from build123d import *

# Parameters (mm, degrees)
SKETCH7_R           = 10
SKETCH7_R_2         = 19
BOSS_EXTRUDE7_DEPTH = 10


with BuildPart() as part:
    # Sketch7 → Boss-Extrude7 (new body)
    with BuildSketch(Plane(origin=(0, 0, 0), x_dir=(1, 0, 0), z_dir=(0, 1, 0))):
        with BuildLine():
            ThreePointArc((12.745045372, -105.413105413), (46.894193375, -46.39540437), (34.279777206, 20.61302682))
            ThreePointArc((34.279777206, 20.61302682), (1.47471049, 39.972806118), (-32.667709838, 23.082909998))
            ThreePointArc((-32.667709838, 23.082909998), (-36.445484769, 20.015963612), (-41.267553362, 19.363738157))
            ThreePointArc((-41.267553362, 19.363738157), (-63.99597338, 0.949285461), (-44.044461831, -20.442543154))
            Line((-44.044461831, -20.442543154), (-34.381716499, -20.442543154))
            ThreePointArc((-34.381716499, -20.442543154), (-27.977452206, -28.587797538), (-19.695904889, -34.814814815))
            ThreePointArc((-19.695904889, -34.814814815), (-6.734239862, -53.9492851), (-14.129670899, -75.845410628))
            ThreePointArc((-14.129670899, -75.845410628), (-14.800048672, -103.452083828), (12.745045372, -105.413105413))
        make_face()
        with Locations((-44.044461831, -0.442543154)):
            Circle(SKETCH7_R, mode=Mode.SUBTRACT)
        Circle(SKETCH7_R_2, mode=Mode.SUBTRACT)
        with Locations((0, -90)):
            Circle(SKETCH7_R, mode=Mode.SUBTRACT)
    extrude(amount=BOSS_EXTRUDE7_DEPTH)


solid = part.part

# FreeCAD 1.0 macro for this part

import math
import FreeCAD as App
import Part
import Sketcher
from FreeCAD import Vector
Q = App.Units.Quantity

doc = App.newDocument("Part")
body = doc.addObject("PartDesign::Body", "Body")

# Sketch on XZ plane
sketch1 = doc.addObject("Sketcher::SketchObject", "Sketch")
body.addObject(sketch1)
sketch1.AttachmentSupport = (doc.XZ_Plane, [""])
sketch1.MapMode = "FlatFace"
sketch1.addGeometry(Part.ArcOfCircle(Part.Circle(Vector(-50, 30, 0), Vector(0, 0, 1), 98), math.radians(-31), math.radians(50)), False)
sketch1.addGeometry(Part.ArcOfCircle(Part.Circle(Vector(0, 0, 0), Vector(0, 0, 1), 40), math.radians(-145), math.radians(-31)), False)
sketch1.addGeometry(Part.ArcOfCircle(Part.Circle(Vector(-40, -28, 0), Vector(0, 0, 1), 9), math.radians(35), math.radians(98)), False)
sketch1.addGeometry(Part.ArcOfCircle(Part.Circle(Vector(-44, 0, 0), Vector(0, 0, 1), 20), math.radians(90), math.radians(278)), False)
sketch1.addGeometry(Part.LineSegment(Vector(-44, 20, 0), Vector(-34, 20, 0)), False)
sketch1.addGeometry(Part.ArcOfCircle(Part.Circle(Vector(0, 0, 0), Vector(0, 0, 1), 40), math.radians(119), math.radians(149)), False)
sketch1.addGeometry(Part.ArcOfCircle(Part.Circle(Vector(-32, 57, 0), Vector(0, 0, 1), 26), math.radians(-61), math.radians(45)), False)
sketch1.addGeometry(Part.ArcOfCircle(Part.Circle(Vector(0, 90, 0), Vector(0, 0, 1), 20), math.radians(50), math.radians(225)), False)
sketch1.addGeometry(Part.Circle(Vector(0, 90, 0), Vector(0, 0, 1), 10), False)
sketch1.addGeometry(Part.Circle(Vector(-44, 0, 0), Vector(0, 0, 1), 10), False)
sketch1.addGeometry(Part.Circle(Vector(0, 0, 0), Vector(0, 0, 1), 19), False)
sketch1.addConstraint(Sketcher.Constraint("Tangent", 0, 1, 1, 2))
sketch1.addConstraint(Sketcher.Constraint("Tangent", 1, 1, 2, 1))
sketch1.addConstraint(Sketcher.Constraint("Tangent", 2, 2, 3, 2))
sketch1.addConstraint(Sketcher.Constraint("Tangent", 3, 1, 4, 1))
sketch1.addConstraint(Sketcher.Constraint("Coincident", 4, 2, 5, 2))
sketch1.addConstraint(Sketcher.Constraint("Tangent", 5, 1, 6, 1))
sketch1.addConstraint(Sketcher.Constraint("Tangent", 6, 2, 7, 2))
sketch1.addConstraint(Sketcher.Constraint("Tangent", 7, 1, 0, 2))
sketch1.addConstraint(Sketcher.Constraint("Horizontal", 4))
sketch1.addConstraint(Sketcher.Constraint("Coincident", 1, 3, -1, 1))
sketch1.addConstraint(Sketcher.Constraint("Coincident", 5, 3, -1, 1))
sketch1.addConstraint(Sketcher.Constraint("Coincident", 10, 3, -1, 1))
sketch1.addConstraint(Sketcher.Constraint("Coincident", 8, 3, 7, 3))
sketch1.addConstraint(Sketcher.Constraint("Coincident", 9, 3, 3, 3))
sketch1.addConstraint(Sketcher.Constraint("Equal", 1, 5))
sketch1.addConstraint(Sketcher.Constraint("Equal", 3, 7))
sketch1.addConstraint(Sketcher.Constraint("Equal", 8, 9))
sketch1.addConstraint(Sketcher.Constraint("PointOnObject", 7, 3, -2))
sketch1.addConstraint(Sketcher.Constraint("Diameter", 8, Q("20 mm")))
sketch1.addConstraint(Sketcher.Constraint("Diameter", 10, Q("38 mm")))
sketch1.addConstraint(Sketcher.Constraint("Radius", 0, Q("98 mm")))
sketch1.addConstraint(Sketcher.Constraint("Radius", 1, Q("40 mm")))
sketch1.addConstraint(Sketcher.Constraint("Radius", 2, Q("9 mm")))
sketch1.addConstraint(Sketcher.Constraint("Radius", 3, Q("20 mm")))
sketch1.addConstraint(Sketcher.Constraint("Radius", 6, Q("26 mm")))
sketch1.addConstraint(Sketcher.Constraint("DistanceY", -1, 1, 7, 3, Q("90 mm")))
sketch1.addConstraint(Sketcher.Constraint("DistanceY", 3, 3, 6, 3, Q("57.001901 mm")))
sketch1.addConstraint(Sketcher.Constraint("DistanceX", 2, 3, 6, 3, Q("7.519701 mm")))
pad1 = doc.addObject("PartDesign::Pad", "Pad")
body.addObject(pad1)
pad1.Profile = sketch1
pad1.Length = 10
pad1.Reversed = True

doc.recompute()
